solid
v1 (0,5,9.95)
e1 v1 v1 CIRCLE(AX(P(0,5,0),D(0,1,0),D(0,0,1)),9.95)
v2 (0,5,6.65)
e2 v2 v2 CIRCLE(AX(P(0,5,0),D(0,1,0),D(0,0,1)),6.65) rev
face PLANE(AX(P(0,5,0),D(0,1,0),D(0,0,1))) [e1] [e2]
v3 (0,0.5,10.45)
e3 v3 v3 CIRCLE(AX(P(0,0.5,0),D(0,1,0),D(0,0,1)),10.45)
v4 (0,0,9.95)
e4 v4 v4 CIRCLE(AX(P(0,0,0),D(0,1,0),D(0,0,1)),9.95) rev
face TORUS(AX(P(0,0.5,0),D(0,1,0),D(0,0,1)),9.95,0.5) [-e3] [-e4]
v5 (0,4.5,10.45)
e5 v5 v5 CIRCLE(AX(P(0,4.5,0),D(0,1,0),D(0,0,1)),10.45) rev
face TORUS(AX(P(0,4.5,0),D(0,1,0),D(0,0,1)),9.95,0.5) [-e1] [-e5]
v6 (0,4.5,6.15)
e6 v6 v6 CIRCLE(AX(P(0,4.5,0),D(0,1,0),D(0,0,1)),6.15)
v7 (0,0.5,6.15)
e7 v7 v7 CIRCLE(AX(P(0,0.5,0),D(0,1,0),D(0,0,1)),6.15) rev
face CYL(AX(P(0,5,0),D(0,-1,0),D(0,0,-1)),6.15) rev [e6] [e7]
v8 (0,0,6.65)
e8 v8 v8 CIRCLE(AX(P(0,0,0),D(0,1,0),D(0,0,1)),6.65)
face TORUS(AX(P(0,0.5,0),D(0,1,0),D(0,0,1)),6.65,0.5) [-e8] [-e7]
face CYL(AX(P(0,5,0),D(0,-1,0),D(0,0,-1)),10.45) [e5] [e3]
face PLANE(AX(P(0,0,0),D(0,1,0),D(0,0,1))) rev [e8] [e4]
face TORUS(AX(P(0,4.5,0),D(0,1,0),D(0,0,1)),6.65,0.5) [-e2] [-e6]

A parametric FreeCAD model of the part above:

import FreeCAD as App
import Part
import Sketcher
Q = App.Units.Quantity


def edges_at(feature, points):
    """Names of the edges that pass closest to the given points."""
    edges = feature.Shape.Edges
    near = lambda p: min(range(len(edges)), key=lambda i: edges[i].distToShape(Part.Vertex(*p))[0])
    return sorted({f"Edge{near(p) + 1}" for p in points})

doc = App.newDocument("Part")
body = doc.addObject("PartDesign::Body", "Body")

sketch1 = body.newObject("Sketcher::SketchObject", "Sketch")
sketch1.AttachmentSupport = (doc.getObject("XZ_Plane"), [""])
sketch1.MapMode = "FlatFace"
sketch1.addGeometry([
    Part.Circle(App.Vector(0, 0, 0), App.Vector(0, 0, 1), 10),
    Part.Circle(App.Vector(0, 0, 0), App.Vector(0, 0, 1), 6),
], False)
sketch1.addConstraint([
    Sketcher.Constraint("Coincident", 0, 3, -1, 1),
    Sketcher.Constraint("Coincident", 1, 3, -1, 1),
    Sketcher.Constraint("Diameter", 0, Q("20.9 mm")),
    Sketcher.Constraint("Diameter", 1, Q("12.3 mm")),
])
pad1 = body.newObject("PartDesign::Pad", "Pad")
pad1.Profile = sketch1
pad1.Length = 5
pad1.Reversed = True
doc.recompute()

fillet = body.newObject("PartDesign::Fillet", "Fillet")
fillet.Base = (pad1, edges_at(pad1, [
    (0, 0, -10.45),
    (0, 5, -10.45),
    (0, 0, -6.15),
    (0, 5, -6.15),
]))
fillet.Radius = 0.5

doc.recompute()
